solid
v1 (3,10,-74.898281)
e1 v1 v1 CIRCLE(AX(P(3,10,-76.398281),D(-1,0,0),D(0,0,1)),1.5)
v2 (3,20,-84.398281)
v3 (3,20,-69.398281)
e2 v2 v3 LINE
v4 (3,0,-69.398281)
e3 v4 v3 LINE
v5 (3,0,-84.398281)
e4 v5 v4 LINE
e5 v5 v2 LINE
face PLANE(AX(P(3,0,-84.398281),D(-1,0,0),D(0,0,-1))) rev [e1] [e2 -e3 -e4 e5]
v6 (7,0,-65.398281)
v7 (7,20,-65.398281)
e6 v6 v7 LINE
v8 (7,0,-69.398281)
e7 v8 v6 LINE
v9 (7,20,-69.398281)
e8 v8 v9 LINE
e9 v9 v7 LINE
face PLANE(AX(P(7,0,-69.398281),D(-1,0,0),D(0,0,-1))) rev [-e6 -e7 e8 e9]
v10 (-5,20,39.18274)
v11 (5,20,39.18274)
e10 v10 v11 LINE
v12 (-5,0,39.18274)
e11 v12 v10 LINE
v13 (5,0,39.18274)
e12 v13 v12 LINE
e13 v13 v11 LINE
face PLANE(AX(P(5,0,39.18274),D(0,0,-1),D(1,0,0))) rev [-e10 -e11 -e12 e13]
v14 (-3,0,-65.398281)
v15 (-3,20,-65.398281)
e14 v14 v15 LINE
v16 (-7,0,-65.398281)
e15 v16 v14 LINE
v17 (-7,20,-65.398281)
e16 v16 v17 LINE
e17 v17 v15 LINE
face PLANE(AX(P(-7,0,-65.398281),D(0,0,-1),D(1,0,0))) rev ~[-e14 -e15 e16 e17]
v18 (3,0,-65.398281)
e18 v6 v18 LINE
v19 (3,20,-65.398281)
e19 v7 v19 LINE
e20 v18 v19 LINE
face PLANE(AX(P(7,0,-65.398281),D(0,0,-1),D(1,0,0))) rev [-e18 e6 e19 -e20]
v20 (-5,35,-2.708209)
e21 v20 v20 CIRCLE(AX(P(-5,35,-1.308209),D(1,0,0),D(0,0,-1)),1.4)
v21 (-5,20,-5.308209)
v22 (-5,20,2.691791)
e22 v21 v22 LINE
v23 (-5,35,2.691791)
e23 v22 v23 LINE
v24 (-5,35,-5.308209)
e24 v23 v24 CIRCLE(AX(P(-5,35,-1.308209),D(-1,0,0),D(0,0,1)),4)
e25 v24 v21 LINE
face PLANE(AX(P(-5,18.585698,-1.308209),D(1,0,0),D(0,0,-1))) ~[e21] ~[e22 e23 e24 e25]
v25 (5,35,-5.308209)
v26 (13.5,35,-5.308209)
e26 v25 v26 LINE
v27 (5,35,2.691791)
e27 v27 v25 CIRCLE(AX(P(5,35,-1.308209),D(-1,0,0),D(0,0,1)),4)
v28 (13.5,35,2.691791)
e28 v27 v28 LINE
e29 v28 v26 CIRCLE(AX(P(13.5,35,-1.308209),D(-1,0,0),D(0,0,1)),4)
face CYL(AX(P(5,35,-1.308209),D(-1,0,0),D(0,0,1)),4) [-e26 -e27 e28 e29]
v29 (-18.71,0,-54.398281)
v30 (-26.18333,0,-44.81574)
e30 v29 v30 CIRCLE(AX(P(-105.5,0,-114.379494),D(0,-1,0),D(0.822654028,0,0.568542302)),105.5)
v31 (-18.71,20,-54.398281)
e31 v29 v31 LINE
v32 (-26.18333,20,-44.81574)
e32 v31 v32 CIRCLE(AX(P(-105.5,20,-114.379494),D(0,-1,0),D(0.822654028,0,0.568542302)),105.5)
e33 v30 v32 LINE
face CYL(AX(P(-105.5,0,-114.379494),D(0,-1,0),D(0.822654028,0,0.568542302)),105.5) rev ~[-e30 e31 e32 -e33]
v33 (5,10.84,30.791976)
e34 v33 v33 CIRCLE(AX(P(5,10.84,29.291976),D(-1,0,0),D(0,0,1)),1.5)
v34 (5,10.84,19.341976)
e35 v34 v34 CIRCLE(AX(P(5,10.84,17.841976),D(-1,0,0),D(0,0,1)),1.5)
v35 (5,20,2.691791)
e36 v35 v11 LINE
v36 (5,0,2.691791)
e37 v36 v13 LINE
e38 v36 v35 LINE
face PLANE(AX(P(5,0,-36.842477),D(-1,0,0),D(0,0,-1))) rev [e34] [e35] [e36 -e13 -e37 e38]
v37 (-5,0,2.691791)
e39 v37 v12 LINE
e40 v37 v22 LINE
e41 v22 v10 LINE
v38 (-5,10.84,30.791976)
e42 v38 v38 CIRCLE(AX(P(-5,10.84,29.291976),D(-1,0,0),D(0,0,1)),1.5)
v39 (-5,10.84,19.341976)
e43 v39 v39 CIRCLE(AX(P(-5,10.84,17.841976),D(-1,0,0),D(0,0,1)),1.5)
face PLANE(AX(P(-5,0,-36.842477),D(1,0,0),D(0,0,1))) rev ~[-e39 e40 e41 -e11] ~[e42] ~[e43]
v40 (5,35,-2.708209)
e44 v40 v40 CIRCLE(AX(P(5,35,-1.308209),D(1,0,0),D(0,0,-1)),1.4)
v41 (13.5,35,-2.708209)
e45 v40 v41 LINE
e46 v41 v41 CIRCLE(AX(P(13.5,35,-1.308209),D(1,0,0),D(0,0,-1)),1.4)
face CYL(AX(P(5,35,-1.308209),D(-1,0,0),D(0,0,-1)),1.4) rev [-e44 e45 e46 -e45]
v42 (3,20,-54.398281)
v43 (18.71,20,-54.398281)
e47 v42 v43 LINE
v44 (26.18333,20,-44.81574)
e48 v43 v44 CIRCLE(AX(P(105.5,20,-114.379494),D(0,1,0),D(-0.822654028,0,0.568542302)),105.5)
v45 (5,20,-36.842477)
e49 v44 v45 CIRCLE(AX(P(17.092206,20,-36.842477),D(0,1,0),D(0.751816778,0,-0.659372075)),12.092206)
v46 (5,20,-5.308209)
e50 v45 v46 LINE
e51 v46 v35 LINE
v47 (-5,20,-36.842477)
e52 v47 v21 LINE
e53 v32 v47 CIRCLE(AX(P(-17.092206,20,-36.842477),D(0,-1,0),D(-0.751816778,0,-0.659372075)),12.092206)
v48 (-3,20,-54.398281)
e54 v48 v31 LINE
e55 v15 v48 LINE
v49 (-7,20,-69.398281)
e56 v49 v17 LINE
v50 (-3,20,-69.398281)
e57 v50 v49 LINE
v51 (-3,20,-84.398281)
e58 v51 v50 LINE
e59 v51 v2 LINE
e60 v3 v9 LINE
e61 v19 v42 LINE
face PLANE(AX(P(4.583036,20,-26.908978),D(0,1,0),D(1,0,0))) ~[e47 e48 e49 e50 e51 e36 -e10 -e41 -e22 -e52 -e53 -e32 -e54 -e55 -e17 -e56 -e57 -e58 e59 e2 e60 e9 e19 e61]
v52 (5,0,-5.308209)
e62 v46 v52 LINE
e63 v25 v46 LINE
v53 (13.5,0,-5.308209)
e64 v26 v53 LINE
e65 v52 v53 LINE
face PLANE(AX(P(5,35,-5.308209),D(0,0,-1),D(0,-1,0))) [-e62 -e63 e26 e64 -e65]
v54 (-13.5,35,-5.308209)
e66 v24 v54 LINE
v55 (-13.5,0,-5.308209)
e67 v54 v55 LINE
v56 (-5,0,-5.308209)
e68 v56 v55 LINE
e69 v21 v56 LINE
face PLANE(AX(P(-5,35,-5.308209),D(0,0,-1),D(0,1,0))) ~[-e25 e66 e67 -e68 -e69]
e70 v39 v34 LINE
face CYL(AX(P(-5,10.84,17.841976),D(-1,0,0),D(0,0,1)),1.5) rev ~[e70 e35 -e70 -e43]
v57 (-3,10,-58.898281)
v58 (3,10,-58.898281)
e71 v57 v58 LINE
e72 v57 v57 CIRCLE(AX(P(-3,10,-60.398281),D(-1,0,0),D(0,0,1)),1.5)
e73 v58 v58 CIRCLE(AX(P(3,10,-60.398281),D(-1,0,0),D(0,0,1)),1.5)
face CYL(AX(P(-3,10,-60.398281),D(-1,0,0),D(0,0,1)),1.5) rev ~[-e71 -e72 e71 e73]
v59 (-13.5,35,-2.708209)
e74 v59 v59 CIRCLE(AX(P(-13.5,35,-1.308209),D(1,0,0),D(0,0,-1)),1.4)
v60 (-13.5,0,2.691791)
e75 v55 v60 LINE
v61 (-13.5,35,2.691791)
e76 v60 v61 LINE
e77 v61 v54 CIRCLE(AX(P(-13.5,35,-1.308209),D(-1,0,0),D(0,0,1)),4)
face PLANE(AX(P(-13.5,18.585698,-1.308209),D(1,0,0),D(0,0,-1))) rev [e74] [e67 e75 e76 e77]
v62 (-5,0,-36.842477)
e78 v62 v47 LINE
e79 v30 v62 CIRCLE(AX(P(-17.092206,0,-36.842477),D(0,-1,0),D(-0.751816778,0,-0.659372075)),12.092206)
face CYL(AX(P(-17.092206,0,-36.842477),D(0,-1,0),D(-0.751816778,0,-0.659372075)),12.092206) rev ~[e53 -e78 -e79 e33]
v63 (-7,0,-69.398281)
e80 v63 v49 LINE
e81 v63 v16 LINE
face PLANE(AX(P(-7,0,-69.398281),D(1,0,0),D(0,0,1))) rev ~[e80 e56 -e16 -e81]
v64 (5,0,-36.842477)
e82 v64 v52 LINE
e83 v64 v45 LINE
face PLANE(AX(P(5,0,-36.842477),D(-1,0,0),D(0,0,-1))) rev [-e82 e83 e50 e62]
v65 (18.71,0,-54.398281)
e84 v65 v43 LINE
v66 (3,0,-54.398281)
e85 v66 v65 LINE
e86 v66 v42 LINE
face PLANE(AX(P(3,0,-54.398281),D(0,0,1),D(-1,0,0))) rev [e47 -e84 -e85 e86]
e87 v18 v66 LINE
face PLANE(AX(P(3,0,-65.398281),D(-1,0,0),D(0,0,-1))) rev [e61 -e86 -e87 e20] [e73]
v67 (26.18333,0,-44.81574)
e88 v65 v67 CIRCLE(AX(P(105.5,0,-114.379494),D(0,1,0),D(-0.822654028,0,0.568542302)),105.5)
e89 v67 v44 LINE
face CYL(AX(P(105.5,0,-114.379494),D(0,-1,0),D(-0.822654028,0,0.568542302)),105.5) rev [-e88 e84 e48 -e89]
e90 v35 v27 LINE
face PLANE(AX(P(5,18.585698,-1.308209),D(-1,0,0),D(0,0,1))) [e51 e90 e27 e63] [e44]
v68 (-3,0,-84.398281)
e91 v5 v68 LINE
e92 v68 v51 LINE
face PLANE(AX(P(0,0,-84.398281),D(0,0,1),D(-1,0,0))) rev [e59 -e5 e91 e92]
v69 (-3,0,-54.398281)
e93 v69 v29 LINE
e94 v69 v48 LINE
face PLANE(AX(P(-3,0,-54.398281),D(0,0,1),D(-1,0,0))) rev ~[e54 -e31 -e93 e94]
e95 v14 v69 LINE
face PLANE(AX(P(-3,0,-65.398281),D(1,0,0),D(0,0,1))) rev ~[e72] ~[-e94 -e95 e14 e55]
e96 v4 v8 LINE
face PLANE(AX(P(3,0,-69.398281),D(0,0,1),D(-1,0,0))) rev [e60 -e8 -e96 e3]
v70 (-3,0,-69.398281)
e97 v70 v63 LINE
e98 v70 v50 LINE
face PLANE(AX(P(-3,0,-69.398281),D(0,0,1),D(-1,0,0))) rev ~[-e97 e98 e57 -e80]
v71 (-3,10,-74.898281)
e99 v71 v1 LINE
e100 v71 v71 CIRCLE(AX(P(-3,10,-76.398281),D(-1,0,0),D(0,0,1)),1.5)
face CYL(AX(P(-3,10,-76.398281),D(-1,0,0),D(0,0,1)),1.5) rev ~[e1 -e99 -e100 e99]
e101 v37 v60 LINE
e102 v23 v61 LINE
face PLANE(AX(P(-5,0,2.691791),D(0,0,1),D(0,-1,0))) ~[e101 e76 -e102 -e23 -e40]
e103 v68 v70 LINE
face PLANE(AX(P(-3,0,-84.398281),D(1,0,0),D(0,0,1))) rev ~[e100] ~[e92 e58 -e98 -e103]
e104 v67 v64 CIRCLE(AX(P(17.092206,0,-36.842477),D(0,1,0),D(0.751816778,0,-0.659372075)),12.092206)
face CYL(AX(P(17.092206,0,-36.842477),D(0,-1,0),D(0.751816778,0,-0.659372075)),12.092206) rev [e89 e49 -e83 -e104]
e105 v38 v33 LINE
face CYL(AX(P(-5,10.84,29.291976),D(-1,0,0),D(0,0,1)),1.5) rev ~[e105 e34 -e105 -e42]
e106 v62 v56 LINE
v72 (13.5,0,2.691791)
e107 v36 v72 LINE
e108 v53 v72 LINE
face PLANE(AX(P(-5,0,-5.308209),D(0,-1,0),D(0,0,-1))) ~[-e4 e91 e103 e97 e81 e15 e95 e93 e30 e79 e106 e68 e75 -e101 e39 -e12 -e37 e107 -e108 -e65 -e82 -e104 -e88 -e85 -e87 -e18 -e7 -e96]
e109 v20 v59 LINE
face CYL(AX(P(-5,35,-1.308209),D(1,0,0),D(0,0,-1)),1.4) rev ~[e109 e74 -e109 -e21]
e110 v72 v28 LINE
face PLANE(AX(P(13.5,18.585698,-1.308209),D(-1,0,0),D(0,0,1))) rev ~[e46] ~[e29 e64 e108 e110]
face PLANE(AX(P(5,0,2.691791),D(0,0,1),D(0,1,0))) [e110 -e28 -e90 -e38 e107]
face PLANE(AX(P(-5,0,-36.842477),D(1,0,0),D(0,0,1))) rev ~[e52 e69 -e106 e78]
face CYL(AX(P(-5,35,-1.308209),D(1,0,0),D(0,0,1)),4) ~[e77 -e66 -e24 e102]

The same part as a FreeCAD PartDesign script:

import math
import FreeCAD as App
import Part
import Sketcher

doc = App.newDocument("Part")
body = doc.addObject("PartDesign::Body", "Body")

# Sketch on XZ plane
sketch1 = body.newObject("Sketcher::SketchObject", "Sketch")
sketch1.AttachmentSupport = (doc.getObject("XZ_Plane"), [""])
sketch1.MapMode = "FlatFace"
sketch1.addGeometry([
    Part.LineSegment(App.Vector(-3, -84.4, 0), App.Vector(-3, -69.4, 0)),  # 0
    Part.LineSegment(App.Vector(-3, -69.4, 0), App.Vector(-7, -69.4, 0)),  # 1
    Part.LineSegment(App.Vector(-7, -69.4, 0), App.Vector(-7, -65.4, 0)),  # 2
    Part.LineSegment(App.Vector(-7, -65.4, 0), App.Vector(-3, -65.4, 0)),  # 3
    Part.LineSegment(App.Vector(-3, -65.4, 0), App.Vector(-3, -54.4, 0)),  # 4
    Part.LineSegment(App.Vector(-3, -54.4, 0), App.Vector(-18.7, -54.4, 0)),  # 5
    Part.ArcOfCircle(Part.Circle(App.Vector(-105.5, -114.4, 0), App.Vector(0, 0, 1), 105.5), math.radians(34.65), math.radians(41.25)),  # 6
    Part.ArcOfCircle(Part.Circle(App.Vector(-17.1, -36.8, 0), App.Vector(0, 0, 1), 12.1), math.radians(-139), math.radians(0)),  # 7
    Part.LineSegment(App.Vector(-5, -36.8, 0), App.Vector(-5, 39.2, 0)),  # 8
    Part.LineSegment(App.Vector(-5, 39.2, 0), App.Vector(0, 39.2, 0)),  # 9
    Part.LineSegment(App.Vector(0, 39.2, 0), App.Vector(0, -84.4, 0)),  # 10
    Part.LineSegment(App.Vector(0, -84.4, 0), App.Vector(-3, -84.4, 0)),  # 11
], False)
sketch1.addConstraint([
    Sketcher.Constraint("Coincident", 0, 2, 1, 1),
    Sketcher.Constraint("Coincident", 1, 2, 2, 1),
    Sketcher.Constraint("Coincident", 2, 2, 3, 1),
    Sketcher.Constraint("Coincident", 3, 2, 4, 1),
    Sketcher.Constraint("Coincident", 4, 2, 5, 1),
    Sketcher.Constraint("Coincident", 5, 2, 6, 1),
    Sketcher.Constraint("Tangent", 6, 2, 7, 1),
    Sketcher.Constraint("Tangent", 7, 2, 8, 1),
    Sketcher.Constraint("Coincident", 8, 2, 9, 1),
    Sketcher.Constraint("Coincident", 9, 2, 10, 1),
    Sketcher.Constraint("Coincident", 10, 2, 11, 1),
    Sketcher.Constraint("Coincident", 11, 2, 0, 1),
    Sketcher.Constraint("Vertical", 0),
    Sketcher.Constraint("Horizontal", 1),
    Sketcher.Constraint("Vertical", 2),
    Sketcher.Constraint("Horizontal", 3),
    Sketcher.Constraint("Vertical", 4),
    Sketcher.Constraint("Horizontal", 5),
    Sketcher.Constraint("Vertical", 8),
    Sketcher.Constraint("Horizontal", 9),
    Sketcher.Constraint("Vertical", 10),
    Sketcher.Constraint("Horizontal", 11),
    Sketcher.Constraint("PointOnObject", 9, 2, -2),
    Sketcher.Constraint("Vertical", 0, 2, 3, 2),
    Sketcher.Constraint("Equal", 3, 2),
    Sketcher.Constraint("Radius", 6, 105.5),
    Sketcher.Constraint("DistanceX", 1, 2, 1, 1, 4.0),
    Sketcher.Constraint("DistanceX", 9, 1, 9, 2, 5.0),
    Sketcher.Constraint("DistanceX", 11, 2, 11, 1, 3.0),
    Sketcher.Constraint("DistanceY", 0, 1, 0, 2, 15.0),
    Sketcher.Constraint("DistanceY", 4, 1, 4, 2, 11.0),
    Sketcher.Constraint("DistanceX", 5, 2, 5, 1, 15.71),
    Sketcher.Constraint("DistanceX", 6, 3, -1, 1, 105.5),
    Sketcher.Constraint("Radius", 7, 12.092206),
    Sketcher.Constraint("DistanceY", 10, 2, 10, 1, 123.581021),
    Sketcher.Constraint("DistanceY", 0, 2, -1, 1, 69.398281),
])
pad1 = body.newObject("PartDesign::Pad", "Pad")
pad1.Profile = sketch1
pad1.Length = 20
pad1.Reversed = True
doc.recompute()

mirrored = body.newObject("PartDesign::Mirrored", "Mirrored")
mirrored.Originals = [pad1]
mirrored.MirrorPlane = (doc.getObject("YZ_Plane"), [""])
body.Tip = mirrored

# Sketch on YZ plane
sketch2 = body.newObject("Sketcher::SketchObject", "Sketch001")
sketch2.AttachmentSupport = (doc.getObject("YZ_Plane"), [""])
sketch2.MapMode = "FlatFace"
sketch2.AttachmentOffset = App.Placement(App.Vector(0, 0, -3), App.Rotation())
sketch2.addGeometry([
    Part.Circle(App.Vector(10, -76.4, 0), App.Vector(0, 0, 1), 1.5),
    Part.Circle(App.Vector(10, -60.4, 0), App.Vector(0, 0, 1), 1.5),
], False)
sketch2.addConstraint([
    Sketcher.Constraint("Equal", 0, 1),
    Sketcher.Constraint("Vertical", 0, 3, 1, 3),
    Sketcher.Constraint("Diameter", 0, 3.0),
    Sketcher.Constraint("DistanceX", -1, 1, 0, 3, 10.0),
    Sketcher.Constraint("DistanceY", 0, 3, 1, 3, 16.0),
    Sketcher.Constraint("DistanceY", 0, 3, -1, 1, 76.398281),
])
pocket1 = body.newObject("PartDesign::Pocket", "Pocket")
pocket1.Profile = sketch2
pocket1.Length = 20
pocket1.Reversed = True

# Sketch on YZ plane
sketch3 = body.newObject("Sketcher::SketchObject", "Sketch002")
sketch3.AttachmentSupport = (doc.getObject("YZ_Plane"), [""])
sketch3.MapMode = "FlatFace"
sketch3.AttachmentOffset = App.Placement(App.Vector(0, 0, -5), App.Rotation())
sketch3.addGeometry(Part.Circle(App.Vector(10.8, 29.3, 0), App.Vector(0, 0, 1), 1.5), False)
sketch3.addConstraint([
    Sketcher.Constraint("Diameter", 0, 3.0),
    Sketcher.Constraint("DistanceX", -1, 1, 0, 3, 10.84),
    Sketcher.Constraint("DistanceY", -1, 1, 0, 3, 29.291976),
])
pocket2 = body.newObject("PartDesign::Pocket", "Pocket001")
pocket2.Profile = sketch3
pocket2.Length = 10
pocket2.Reversed = True

# Sketch on YZ plane
sketch4 = body.newObject("Sketcher::SketchObject", "Sketch003")
sketch4.AttachmentSupport = (doc.getObject("YZ_Plane"), [""])
sketch4.MapMode = "FlatFace"
sketch4.AttachmentOffset = App.Placement(App.Vector(0, 0, -5), App.Rotation())
sketch4.addGeometry(Part.Circle(App.Vector(10.8, 17.8, 0), App.Vector(0, 0, 1), 1.5), False)
sketch4.addConstraint([
    Sketcher.Constraint("Diameter", 0, 3.0),
    Sketcher.Constraint("DistanceX", -1, 1, 0, 3, 10.84),
    Sketcher.Constraint("DistanceY", -1, 1, 0, 3, 17.841976),
])
pocket3 = body.newObject("PartDesign::Pocket", "Pocket002")
pocket3.Profile = sketch4
pocket3.Length = 10
pocket3.Reversed = True

# Sketch on YZ plane
sketch5 = body.newObject("Sketcher::SketchObject", "Sketch004")
sketch5.AttachmentSupport = (doc.getObject("YZ_Plane"), [""])
sketch5.MapMode = "FlatFace"
sketch5.AttachmentOffset = App.Placement(App.Vector(0, 0, 5), App.Rotation())
sketch5.addGeometry([
    Part.LineSegment(App.Vector(0, 2.7, 0), App.Vector(0, -5.3, 0)),  # 0
    Part.LineSegment(App.Vector(0, -5.3, 0), App.Vector(35, -5.3, 0)),  # 1
    Part.ArcOfCircle(Part.Circle(App.Vector(35, -1.3, 0), App.Vector(0, 0, 1), 4), math.radians(-90), math.radians(90)),  # 2
    Part.LineSegment(App.Vector(35, 2.7, 0), App.Vector(0, 2.7, 0)),  # 3
    Part.Circle(App.Vector(35, -1.3, 0), App.Vector(0, 0, 1), 1.4),  # 4
], False)
sketch5.addConstraint([
    Sketcher.Constraint("Coincident", 0, 2, 1, 1),
    Sketcher.Constraint("Tangent", 1, 2, 2, 1),
    Sketcher.Constraint("Tangent", 2, 2, 3, 1),
    Sketcher.Constraint("Coincident", 3, 2, 0, 1),
    Sketcher.Constraint("Vertical", 0),
    Sketcher.Constraint("Horizontal", 1),
    Sketcher.Constraint("Horizontal", 3),
    Sketcher.Constraint("Coincident", 4, 3, 2, 3),
    Sketcher.Constraint("PointOnObject", 0, 2, -2),
    Sketcher.Constraint("Radius", 2, 4.0),
    Sketcher.Constraint("Diameter", 4, 2.8),
    Sketcher.Constraint("DistanceX", 1, 1, 1, 2, 35.0),
    Sketcher.Constraint("DistanceY", 2, 3, -1, 1, 1.308209),
])
pad2 = body.newObject("PartDesign::Pad", "Pad001")
pad2.Profile = sketch5
pad2.Length = 8.5
doc.recompute()

mirrored2 = body.newObject("PartDesign::Mirrored", "Mirrored001")
mirrored2.Originals = [pad2]
mirrored2.MirrorPlane = (doc.getObject("YZ_Plane"), [""])
body.Tip = mirrored2

doc.recompute()
